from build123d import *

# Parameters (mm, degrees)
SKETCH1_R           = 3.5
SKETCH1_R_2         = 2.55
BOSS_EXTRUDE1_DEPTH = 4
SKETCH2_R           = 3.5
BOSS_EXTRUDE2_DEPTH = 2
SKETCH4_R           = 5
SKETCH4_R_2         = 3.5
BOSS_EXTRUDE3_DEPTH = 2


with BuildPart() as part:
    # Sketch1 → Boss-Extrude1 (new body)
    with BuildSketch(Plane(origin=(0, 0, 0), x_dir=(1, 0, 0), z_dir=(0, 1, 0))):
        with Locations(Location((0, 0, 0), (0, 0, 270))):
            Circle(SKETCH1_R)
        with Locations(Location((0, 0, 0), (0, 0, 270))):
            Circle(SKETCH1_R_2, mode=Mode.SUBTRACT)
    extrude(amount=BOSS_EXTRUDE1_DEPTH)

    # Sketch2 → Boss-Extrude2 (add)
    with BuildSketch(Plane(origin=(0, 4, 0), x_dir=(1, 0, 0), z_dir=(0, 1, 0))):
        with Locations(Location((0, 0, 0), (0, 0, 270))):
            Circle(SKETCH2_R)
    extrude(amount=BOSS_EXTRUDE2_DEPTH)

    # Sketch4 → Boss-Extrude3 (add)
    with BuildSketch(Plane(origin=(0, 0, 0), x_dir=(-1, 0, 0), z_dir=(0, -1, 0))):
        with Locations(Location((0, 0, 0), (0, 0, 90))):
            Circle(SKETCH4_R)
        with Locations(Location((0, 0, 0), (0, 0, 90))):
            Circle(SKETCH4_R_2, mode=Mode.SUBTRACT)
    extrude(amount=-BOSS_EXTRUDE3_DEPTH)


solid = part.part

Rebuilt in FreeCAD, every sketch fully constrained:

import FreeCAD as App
import Part
import Sketcher
Q = App.Units.Quantity

doc = App.newDocument("Part")
body = doc.addObject("PartDesign::Body", "Body")

# Sketch on XZ plane
sketch1 = body.newObject("Sketcher::SketchObject", "Sketch")
sketch1.AttachmentSupport = (doc.getObject("XZ_Plane"), [""])
sketch1.MapMode = "FlatFace"
sketch1.addGeometry([
    Part.Circle(App.Vector(0, 0, 0), App.Vector(0, 0, 1), 3.5),
    Part.Circle(App.Vector(0, 0, 0), App.Vector(0, 0, 1), 2.5),
], False)
sketch1.addConstraint([
    Sketcher.Constraint("Coincident", 0, 3, -1, 1),
    Sketcher.Constraint("Coincident", 1, 3, -1, 1),
    Sketcher.Constraint("Diameter", 0, Q("7 mm")),
    Sketcher.Constraint("Diameter", 1, Q("5.1 mm")),
])
pad1 = body.newObject("PartDesign::Pad", "Pad")
pad1.Profile = sketch1
pad1.Length = 4
pad1.Reversed = True

# Sketch on XZ plane
sketch2 = body.newObject("Sketcher::SketchObject", "Sketch001")
sketch2.AttachmentSupport = (doc.getObject("XZ_Plane"), [""])
sketch2.MapMode = "FlatFace"
sketch2.AttachmentOffset = App.Placement(App.Vector(0, 0, -4), App.Rotation())
sketch2.addGeometry(Part.Circle(App.Vector(0, 0, 0), App.Vector(0, 0, 1), 3.5), False)
sketch2.addConstraint([
    Sketcher.Constraint("Coincident", 0, 3, -1, 1),
    Sketcher.Constraint("Diameter", 0, Q("7 mm")),
])
pad2 = body.newObject("PartDesign::Pad", "Pad001")
pad2.Profile = sketch2
pad2.Length = 2
pad2.Reversed = True

# Sketch on XZ plane
sketch3 = body.newObject("Sketcher::SketchObject", "Sketch002")
sketch3.AttachmentSupport = (doc.getObject("XZ_Plane"), [""])
sketch3.MapMode = "FlatFace"
sketch3.addGeometry([
    Part.Circle(App.Vector(0, 0, 0), App.Vector(0, 0, 1), 5),
    Part.Circle(App.Vector(0, 0, 0), App.Vector(0, 0, 1), 3.5),
], False)
sketch3.addConstraint([
    Sketcher.Constraint("Coincident", 0, 3, -1, 1),
    Sketcher.Constraint("Coincident", 1, 3, -1, 1),
    Sketcher.Constraint("Diameter", 0, Q("10 mm")),
    Sketcher.Constraint("Diameter", 1, Q("7 mm")),
])
pad3 = body.newObject("PartDesign::Pad", "Pad002")
pad3.Profile = sketch3
pad3.Length = 2
pad3.Reversed = True

doc.recompute()
